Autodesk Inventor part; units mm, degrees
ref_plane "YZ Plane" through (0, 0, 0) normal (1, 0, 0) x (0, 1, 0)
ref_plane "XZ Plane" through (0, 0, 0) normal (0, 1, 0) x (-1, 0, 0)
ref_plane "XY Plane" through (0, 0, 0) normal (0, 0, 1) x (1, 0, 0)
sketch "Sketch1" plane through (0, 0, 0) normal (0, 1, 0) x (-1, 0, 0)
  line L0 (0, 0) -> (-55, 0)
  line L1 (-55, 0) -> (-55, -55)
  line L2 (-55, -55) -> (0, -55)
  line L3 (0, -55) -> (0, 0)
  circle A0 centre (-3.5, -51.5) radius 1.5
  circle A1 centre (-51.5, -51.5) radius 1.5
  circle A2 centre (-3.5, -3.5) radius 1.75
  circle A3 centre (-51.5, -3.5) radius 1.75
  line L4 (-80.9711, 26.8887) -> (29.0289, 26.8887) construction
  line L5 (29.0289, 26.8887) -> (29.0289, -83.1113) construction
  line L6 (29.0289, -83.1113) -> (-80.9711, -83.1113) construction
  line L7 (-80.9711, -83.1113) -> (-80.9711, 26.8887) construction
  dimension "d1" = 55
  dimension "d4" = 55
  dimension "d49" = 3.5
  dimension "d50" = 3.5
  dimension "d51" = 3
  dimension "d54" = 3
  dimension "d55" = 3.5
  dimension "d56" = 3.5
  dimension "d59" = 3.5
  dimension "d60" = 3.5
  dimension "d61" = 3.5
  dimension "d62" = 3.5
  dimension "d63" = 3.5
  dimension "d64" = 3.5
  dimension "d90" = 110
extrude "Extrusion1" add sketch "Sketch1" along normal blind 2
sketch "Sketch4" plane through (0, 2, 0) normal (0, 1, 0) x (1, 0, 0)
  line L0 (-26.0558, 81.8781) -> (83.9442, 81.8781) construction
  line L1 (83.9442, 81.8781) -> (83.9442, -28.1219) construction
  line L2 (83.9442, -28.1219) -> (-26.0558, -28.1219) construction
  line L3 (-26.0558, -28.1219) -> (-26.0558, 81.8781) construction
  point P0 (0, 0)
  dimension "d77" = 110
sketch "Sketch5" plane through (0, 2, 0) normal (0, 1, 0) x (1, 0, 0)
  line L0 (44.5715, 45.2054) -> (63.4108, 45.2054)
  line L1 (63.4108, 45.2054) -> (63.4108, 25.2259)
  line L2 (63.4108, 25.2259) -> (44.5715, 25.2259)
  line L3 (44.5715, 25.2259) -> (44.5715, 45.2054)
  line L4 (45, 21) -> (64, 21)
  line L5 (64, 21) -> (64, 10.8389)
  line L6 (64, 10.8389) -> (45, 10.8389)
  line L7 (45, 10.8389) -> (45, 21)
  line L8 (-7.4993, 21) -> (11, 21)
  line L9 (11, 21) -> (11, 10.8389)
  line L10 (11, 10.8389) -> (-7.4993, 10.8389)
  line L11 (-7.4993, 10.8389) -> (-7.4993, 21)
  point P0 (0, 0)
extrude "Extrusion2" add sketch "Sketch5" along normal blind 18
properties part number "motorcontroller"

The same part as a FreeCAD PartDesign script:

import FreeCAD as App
import Part
import Sketcher
from FreeCAD import Vector


def add_polygon(sketch, points):
    """Adds a closed chain of lines whose ends are joined by coincident constraints."""
    first, n = sketch.GeometryCount, len(points)
    for a, b in zip(points, points[1:] + points[:1]):
        sketch.addGeometry(Part.LineSegment(App.Vector(*a, 0), App.Vector(*b, 0)), False)
    for i in range(n):
        sketch.addConstraint(Sketcher.Constraint("Coincident", first + i, 2, first + (i + 1) % n, 1))

doc = App.newDocument("Part")
body = doc.addObject("PartDesign::Body", "Body")

sketch1 = body.newObject("Sketcher::SketchObject", "Sketch")
sketch1.AttachmentSupport = (doc.getObject("XZ_Plane"), [""])
sketch1.MapMode = "FlatFace"
add_polygon(sketch1, [(0, -55), (0, 0), (55, 0), (55, -55)])
sketch1.addGeometry(Part.Circle(Vector(51.5, -51.5, 0), Vector(0, 0, 1), 1.5), False)
sketch1.addGeometry(Part.Circle(Vector(3.5, -51.5, 0), Vector(0, 0, 1), 1.5), False)
sketch1.addGeometry(Part.Circle(Vector(51.5, -3.5, 0), Vector(0, 0, 1), 1.75), False)
sketch1.addGeometry(Part.Circle(Vector(3.5, -3.5, 0), Vector(0, 0, 1), 1.75), False)
sketch1.addConstraint([
    Sketcher.Constraint("Vertical", 0),
    Sketcher.Constraint("Horizontal", 1),
    Sketcher.Constraint("Vertical", 2),
    Sketcher.Constraint("Horizontal", 3),
    Sketcher.Constraint("Coincident", 0, 2, -1, 1),
    Sketcher.Constraint("Equal", 4, 5),
    Sketcher.Constraint("Equal", 6, 7),
    Sketcher.Constraint("Horizontal", 4, 3, 5, 3),
    Sketcher.Constraint("Horizontal", 6, 3, 7, 3),
    Sketcher.Constraint("Vertical", 4, 3, 6, 3),
    Sketcher.Constraint("Vertical", 5, 3, 7, 3),
    Sketcher.Constraint("Equal", 3, 0),
    Sketcher.Constraint("Diameter", 4, 3.0),
    Sketcher.Constraint("Diameter", 6, 3.5),
    Sketcher.Constraint("DistanceX", 1, 1, 1, 2, 55.0),
    Sketcher.Constraint("DistanceX", -1, 1, 5, 3, 3.5),
    Sketcher.Constraint("DistanceY", 6, 3, -1, 1, 3.5),
    Sketcher.Constraint("DistanceX", 6, 3, 1, 2, 3.5),
    Sketcher.Constraint("DistanceY", 2, 2, 4, 3, 3.5),
])
pad1 = body.newObject("PartDesign::Pad", "Pad")
pad1.Profile = sketch1
pad1.Length = 2
pad1.Reversed = True

sketch2 = body.newObject("Sketcher::SketchObject", "Sketch001")
sketch2.AttachmentSupport = (doc.getObject("XZ_Plane"), [""])
sketch2.MapMode = "FlatFace"
sketch2.AttachmentOffset = App.Placement(Vector(0, 0, -2), App.Rotation())
add_polygon(sketch2, [(63.4108, -45.2054), (44.5715, -45.2054), (44.5715, -25.2259), (63.4108, -25.2259)])
add_polygon(sketch2, [(64, -21), (45, -21), (45, -10.8389), (64, -10.8389)])
add_polygon(sketch2, [(11, -21), (-7.4993, -21), (-7.4993, -10.8389), (11, -10.8389)])
sketch2.addConstraint([
    Sketcher.Constraint("Horizontal", 0),
    Sketcher.Constraint("Vertical", 1),
    Sketcher.Constraint("Horizontal", 2),
    Sketcher.Constraint("Vertical", 3),
    Sketcher.Constraint("Horizontal", 4),
    Sketcher.Constraint("Vertical", 5),
    Sketcher.Constraint("Horizontal", 6),
    Sketcher.Constraint("Vertical", 7),
    Sketcher.Constraint("Horizontal", 8),
    Sketcher.Constraint("Vertical", 9),
    Sketcher.Constraint("Horizontal", 10),
    Sketcher.Constraint("Vertical", 11),
    Sketcher.Constraint("Horizontal", 7, 2, 8, 2),
    Sketcher.Constraint("Horizontal", 6, 2, 9, 2),
    Sketcher.Constraint("DistanceX", 4, 2, 4, 1, 19.0),
    Sketcher.Constraint("DistanceX", -1, 1, 4, 2, 45.0),
    Sketcher.Constraint("DistanceY", 4, 2, -1, 1, 21.0),
    Sketcher.Constraint("DistanceX", -1, 1, 10, 2, 11.0),
    Sketcher.Constraint("DistanceY", 5, 1, 5, 2, 10.161),
    Sketcher.Constraint("DistanceX", 8, 2, 2, 2, 70.91),
    Sketcher.Constraint("DistanceX", 0, 2, 0, 1, 18.8393),
    Sketcher.Constraint("DistanceX", 8, 2, 8, 1, 18.4993),
    Sketcher.Constraint("DistanceY", 1, 1, 1, 2, 19.9795),
    Sketcher.Constraint("DistanceY", 1, 2, -1, 1, 25.226),
])
pad2 = body.newObject("PartDesign::Pad", "Pad001")
pad2.Profile = sketch2
pad2.Length = 18
pad2.Reversed = True

doc.recompute()
